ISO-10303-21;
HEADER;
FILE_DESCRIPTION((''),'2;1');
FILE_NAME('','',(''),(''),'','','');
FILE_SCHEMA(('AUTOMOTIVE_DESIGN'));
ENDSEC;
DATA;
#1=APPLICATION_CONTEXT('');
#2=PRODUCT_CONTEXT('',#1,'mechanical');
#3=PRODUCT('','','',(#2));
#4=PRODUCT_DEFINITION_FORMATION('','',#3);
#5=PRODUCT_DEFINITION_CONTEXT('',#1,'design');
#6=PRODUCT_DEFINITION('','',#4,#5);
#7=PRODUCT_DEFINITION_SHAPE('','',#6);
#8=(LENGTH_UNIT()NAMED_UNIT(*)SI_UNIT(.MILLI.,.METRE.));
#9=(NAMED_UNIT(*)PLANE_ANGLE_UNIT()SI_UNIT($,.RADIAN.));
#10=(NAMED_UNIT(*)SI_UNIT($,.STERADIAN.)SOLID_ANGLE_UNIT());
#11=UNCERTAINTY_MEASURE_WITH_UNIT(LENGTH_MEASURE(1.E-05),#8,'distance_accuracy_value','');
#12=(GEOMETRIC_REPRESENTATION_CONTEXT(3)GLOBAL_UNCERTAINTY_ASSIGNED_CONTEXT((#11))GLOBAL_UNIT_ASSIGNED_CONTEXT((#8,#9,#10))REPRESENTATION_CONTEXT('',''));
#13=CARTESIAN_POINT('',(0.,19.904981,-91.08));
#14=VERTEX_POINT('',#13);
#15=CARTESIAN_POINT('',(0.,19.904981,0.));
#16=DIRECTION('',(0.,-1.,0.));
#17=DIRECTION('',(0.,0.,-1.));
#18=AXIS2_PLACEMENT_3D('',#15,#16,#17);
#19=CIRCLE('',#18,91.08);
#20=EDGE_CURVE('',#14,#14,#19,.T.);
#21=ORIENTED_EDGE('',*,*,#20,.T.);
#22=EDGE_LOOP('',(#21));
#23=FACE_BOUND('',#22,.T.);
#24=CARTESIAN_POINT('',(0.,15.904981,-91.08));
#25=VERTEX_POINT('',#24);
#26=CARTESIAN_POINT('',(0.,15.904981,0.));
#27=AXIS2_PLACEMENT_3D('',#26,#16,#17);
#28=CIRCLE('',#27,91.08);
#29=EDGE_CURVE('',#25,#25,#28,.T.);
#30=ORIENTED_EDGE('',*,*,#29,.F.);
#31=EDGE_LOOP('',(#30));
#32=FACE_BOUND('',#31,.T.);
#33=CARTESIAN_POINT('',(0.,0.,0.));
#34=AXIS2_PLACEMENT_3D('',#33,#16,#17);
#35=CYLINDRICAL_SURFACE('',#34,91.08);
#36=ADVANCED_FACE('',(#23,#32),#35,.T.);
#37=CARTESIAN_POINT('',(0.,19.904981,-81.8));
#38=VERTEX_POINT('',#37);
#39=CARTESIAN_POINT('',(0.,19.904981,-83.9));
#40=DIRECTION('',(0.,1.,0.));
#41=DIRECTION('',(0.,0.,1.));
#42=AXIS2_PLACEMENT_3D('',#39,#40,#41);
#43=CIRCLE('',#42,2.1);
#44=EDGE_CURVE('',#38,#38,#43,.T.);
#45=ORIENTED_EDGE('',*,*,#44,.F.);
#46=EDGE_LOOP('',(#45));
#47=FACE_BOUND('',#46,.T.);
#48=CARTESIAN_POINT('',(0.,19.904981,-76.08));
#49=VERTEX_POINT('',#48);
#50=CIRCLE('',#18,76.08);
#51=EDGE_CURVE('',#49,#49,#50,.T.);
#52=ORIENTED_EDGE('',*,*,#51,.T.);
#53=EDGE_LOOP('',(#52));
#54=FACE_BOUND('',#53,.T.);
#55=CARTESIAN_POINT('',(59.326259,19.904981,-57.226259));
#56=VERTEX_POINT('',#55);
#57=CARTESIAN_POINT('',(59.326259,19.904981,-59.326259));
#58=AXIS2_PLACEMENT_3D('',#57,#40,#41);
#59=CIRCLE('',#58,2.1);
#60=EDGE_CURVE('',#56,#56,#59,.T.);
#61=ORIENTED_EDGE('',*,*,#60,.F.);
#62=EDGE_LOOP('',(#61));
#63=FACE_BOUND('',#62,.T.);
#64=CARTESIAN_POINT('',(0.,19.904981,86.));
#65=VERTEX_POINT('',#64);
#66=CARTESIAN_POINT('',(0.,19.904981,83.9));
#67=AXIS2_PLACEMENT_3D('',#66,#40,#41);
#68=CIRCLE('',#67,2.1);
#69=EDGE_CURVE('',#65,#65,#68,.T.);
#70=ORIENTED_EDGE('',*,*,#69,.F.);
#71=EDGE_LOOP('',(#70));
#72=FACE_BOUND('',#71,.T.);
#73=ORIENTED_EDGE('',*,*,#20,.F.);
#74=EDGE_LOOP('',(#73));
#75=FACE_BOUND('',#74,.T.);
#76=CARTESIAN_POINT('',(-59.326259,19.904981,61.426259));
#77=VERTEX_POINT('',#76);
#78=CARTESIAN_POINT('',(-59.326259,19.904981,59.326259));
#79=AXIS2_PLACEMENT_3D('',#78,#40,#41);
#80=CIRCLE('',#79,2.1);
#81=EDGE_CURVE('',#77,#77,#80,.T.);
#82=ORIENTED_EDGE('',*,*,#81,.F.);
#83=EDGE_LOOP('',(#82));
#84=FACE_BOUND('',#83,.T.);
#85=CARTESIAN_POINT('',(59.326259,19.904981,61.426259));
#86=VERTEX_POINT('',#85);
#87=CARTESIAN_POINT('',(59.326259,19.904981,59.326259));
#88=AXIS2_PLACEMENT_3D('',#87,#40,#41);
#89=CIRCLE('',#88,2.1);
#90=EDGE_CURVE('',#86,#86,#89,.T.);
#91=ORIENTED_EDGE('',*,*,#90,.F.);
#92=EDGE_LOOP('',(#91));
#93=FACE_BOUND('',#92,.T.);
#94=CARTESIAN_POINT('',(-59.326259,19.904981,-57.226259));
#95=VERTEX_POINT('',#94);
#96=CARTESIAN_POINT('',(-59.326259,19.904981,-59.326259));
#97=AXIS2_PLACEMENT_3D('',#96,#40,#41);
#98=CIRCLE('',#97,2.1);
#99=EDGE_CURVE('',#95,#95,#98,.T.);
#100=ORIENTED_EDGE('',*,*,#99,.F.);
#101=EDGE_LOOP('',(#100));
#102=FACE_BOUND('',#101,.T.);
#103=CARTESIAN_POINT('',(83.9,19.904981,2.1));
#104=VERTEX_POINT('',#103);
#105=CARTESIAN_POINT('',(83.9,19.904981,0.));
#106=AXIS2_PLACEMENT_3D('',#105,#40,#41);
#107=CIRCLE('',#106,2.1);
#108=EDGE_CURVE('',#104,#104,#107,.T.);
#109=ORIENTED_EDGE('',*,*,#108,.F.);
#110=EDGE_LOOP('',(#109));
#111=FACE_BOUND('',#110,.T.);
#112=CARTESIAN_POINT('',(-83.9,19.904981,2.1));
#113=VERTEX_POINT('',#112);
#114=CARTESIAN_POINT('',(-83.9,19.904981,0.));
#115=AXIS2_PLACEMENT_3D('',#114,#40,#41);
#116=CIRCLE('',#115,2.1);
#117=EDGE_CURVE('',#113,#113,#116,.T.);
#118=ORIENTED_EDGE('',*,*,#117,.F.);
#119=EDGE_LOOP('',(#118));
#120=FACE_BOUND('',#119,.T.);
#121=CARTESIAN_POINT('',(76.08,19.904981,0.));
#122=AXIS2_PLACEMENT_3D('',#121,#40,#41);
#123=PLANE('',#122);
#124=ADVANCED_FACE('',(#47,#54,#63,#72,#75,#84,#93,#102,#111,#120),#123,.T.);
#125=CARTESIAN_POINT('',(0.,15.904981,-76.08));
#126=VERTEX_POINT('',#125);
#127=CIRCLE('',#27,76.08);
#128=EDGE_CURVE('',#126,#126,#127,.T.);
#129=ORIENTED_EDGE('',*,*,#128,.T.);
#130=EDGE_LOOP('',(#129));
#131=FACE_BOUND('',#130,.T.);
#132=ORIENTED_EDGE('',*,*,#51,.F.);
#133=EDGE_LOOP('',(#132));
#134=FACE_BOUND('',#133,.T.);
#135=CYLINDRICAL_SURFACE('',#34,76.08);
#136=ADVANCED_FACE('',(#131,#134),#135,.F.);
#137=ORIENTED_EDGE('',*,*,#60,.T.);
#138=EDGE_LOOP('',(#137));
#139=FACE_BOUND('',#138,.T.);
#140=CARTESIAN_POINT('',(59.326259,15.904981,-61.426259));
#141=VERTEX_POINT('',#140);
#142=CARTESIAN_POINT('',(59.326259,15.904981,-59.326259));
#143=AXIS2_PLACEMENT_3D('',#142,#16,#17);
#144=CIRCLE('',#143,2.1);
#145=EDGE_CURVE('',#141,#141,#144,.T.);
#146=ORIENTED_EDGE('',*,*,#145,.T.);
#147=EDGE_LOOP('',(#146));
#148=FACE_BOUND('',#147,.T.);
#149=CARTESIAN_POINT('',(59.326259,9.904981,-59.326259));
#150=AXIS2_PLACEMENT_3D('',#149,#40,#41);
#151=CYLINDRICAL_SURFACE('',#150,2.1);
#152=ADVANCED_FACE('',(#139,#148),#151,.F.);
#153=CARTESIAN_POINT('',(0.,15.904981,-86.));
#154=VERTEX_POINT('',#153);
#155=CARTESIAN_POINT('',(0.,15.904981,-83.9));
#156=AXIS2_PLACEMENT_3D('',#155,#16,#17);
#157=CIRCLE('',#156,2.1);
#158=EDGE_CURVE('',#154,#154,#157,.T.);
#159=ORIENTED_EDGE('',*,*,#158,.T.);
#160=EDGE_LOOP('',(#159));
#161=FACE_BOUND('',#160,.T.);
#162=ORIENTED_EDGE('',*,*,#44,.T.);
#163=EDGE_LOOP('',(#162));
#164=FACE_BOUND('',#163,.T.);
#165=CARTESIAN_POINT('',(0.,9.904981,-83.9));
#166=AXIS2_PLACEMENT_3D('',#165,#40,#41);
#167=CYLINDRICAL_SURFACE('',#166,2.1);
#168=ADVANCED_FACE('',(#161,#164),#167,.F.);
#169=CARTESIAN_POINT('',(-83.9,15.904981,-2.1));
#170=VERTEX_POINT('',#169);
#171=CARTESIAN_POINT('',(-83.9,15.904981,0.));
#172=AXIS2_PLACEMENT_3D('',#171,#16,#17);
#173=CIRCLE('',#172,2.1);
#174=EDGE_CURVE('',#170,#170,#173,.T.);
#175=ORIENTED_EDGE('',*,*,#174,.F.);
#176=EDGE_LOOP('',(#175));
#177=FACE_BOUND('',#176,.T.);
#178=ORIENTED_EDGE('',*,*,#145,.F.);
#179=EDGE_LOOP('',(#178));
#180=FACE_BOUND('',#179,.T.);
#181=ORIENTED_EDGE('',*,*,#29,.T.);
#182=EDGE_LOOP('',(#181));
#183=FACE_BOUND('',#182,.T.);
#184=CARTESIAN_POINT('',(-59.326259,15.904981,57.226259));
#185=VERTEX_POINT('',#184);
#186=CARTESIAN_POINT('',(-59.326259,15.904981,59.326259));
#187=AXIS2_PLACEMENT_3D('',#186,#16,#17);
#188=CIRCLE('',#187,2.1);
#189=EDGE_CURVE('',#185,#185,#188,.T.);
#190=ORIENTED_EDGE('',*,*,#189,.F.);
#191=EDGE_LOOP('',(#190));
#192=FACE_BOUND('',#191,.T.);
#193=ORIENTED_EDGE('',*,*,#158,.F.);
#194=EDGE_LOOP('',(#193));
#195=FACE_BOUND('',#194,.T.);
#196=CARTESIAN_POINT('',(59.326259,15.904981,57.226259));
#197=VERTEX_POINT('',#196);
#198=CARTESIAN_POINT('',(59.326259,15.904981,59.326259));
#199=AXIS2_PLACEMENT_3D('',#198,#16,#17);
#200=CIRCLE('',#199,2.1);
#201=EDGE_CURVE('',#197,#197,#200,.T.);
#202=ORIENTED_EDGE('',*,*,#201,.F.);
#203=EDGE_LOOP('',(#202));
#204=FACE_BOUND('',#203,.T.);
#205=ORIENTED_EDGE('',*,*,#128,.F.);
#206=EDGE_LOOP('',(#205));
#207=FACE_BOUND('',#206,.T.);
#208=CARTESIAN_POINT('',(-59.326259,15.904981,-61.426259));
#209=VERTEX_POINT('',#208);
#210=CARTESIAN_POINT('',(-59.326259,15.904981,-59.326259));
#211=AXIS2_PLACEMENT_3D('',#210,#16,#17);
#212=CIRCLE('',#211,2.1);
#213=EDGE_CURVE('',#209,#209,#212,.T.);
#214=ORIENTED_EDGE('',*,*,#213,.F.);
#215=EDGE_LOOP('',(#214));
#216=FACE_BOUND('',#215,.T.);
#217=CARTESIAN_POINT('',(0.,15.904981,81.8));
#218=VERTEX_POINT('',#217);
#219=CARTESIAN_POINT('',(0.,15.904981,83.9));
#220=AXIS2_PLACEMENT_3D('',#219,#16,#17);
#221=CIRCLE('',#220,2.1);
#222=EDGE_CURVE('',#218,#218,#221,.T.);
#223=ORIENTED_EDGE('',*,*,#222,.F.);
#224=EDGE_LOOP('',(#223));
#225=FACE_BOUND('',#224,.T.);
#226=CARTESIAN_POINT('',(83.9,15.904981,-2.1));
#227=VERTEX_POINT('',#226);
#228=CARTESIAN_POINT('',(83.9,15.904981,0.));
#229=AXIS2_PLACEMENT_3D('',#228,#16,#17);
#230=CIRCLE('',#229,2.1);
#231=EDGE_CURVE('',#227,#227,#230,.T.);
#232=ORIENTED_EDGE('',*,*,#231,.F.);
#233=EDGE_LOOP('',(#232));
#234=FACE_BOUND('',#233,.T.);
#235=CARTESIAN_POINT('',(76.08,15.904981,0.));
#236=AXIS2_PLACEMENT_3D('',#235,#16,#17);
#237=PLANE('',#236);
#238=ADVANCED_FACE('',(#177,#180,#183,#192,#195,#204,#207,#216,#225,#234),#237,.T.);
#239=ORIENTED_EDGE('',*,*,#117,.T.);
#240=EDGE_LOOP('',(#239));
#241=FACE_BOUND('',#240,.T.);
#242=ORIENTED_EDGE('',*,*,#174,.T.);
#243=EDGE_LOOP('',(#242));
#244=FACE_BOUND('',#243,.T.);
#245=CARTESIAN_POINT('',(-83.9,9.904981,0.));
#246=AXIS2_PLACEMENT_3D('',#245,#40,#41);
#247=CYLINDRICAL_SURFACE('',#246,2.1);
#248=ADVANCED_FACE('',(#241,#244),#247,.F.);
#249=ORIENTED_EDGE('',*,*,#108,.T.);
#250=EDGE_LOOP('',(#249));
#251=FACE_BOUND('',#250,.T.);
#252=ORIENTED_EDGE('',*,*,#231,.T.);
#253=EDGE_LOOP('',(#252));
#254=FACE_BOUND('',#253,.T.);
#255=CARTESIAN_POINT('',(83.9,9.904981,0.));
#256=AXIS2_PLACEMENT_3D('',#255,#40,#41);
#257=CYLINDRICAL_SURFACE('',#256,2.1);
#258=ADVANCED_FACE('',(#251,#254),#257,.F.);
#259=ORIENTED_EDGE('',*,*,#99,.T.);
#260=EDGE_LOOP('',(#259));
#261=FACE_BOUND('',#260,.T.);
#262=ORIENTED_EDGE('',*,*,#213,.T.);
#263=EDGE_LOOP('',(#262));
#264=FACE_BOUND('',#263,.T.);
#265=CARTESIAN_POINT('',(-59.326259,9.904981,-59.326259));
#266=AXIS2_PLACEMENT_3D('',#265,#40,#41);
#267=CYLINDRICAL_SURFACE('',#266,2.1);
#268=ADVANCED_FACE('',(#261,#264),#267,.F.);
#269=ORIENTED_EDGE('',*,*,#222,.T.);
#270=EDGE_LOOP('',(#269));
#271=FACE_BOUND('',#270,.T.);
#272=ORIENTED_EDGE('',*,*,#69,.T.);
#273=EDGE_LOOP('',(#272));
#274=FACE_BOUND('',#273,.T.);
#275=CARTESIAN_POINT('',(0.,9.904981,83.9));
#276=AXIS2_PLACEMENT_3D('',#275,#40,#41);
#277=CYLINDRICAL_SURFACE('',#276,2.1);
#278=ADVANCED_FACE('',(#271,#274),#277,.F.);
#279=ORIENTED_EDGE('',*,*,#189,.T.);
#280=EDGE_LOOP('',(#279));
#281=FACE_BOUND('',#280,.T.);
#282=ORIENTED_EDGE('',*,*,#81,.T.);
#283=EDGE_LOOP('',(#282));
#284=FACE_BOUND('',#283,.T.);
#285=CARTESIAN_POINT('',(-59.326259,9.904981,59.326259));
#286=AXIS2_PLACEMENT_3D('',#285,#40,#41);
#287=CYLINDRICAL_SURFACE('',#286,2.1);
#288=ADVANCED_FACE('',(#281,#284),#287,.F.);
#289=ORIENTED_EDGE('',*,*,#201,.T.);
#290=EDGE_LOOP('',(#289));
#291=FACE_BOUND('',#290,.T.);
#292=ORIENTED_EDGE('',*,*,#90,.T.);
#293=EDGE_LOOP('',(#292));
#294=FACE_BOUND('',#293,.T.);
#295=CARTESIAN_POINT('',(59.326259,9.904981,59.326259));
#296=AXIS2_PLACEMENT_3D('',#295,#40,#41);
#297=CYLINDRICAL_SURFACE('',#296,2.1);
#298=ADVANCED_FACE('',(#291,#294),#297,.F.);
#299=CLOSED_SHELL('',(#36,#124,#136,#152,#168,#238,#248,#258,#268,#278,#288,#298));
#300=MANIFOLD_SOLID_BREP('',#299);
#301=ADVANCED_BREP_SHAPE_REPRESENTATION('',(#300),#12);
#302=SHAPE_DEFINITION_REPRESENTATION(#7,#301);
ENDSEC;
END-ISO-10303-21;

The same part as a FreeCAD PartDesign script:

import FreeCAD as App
import Part
import Sketcher

V = App.Vector


def add_polygon(sketch, points):
    """Adds a closed chain of lines whose ends are joined by coincident constraints."""
    first, n = sketch.GeometryCount, len(points)
    for a, b in zip(points, points[1:] + points[:1]):
        sketch.addGeometry(Part.LineSegment(App.Vector(*a, 0), App.Vector(*b, 0)), False)
    for i in range(n):
        sketch.addConstraint(Sketcher.Constraint("Coincident", first + i, 2, first + (i + 1) % n, 1))

doc = App.newDocument("Part")
body = doc.addObject("PartDesign::Body", "Body")

# Sketch on XY plane
sketch1 = body.newObject("Sketcher::SketchObject", "Sketch")
sketch1.AttachmentSupport = (doc.getObject("XY_Plane"), [""])
sketch1.MapMode = "FlatFace"
add_polygon(sketch1, [(76.1, 19.9), (76.1, 15.9), (91.1, 15.9), (91.1, 19.9)])  # lines 0-3
sketch1.addConstraint([
    Sketcher.Constraint("Vertical", 0),
    Sketcher.Constraint("Horizontal", 1),
    Sketcher.Constraint("Vertical", 2),
    Sketcher.Constraint("Horizontal", 3),
    Sketcher.Constraint("DistanceX", 1, 1, 1, 2, 15.0),
    Sketcher.Constraint("DistanceY", 0, 2, 0, 1, 4.0),
    Sketcher.Constraint("DistanceX", -1, 1, 0, 2, 76.08),
    Sketcher.Constraint("DistanceY", -1, 1, 0, 2, 15.904981),
])
revolution = body.newObject("PartDesign::Revolution", "Revolution")
revolution.Profile = sketch1
revolution.ReferenceAxis = (sketch1, ["V_Axis"])
revolution.Angle = 360

# Sketch on XZ plane
sketch2 = body.newObject("Sketcher::SketchObject", "Sketch001")
sketch2.AttachmentSupport = (doc.getObject("XZ_Plane"), [""])
sketch2.MapMode = "FlatFace"
sketch2.AttachmentOffset = App.Placement(V(0, 0, -19.904981), App.Rotation())
sketch2.addGeometry([
    Part.Circle(V(-83.9, 0, 0), V(0, 0, 1), 2.1),  # 0
    Part.Circle(V(-59.3, -59.3, 0), V(0, 0, 1), 2.1),  # 1
    Part.Circle(V(0, -83.9, 0), V(0, 0, 1), 2.1),  # 2
    Part.Circle(V(59.3, -59.3, 0), V(0, 0, 1), 2.1),  # 3
    Part.Circle(V(83.9, 0, 0), V(0, 0, 1), 2.1),  # 4
    Part.Circle(V(59.3, 59.3, 0), V(0, 0, 1), 2.1),  # 5
    Part.Circle(V(0, 83.9, 0), V(0, 0, 1), 2.1),  # 6
    Part.Circle(V(-59.3, 59.3, 0), V(0, 0, 1), 2.1),  # 7
], False)
sketch2.addConstraint([
    Sketcher.Constraint("Equal", 0, 1),
    Sketcher.Constraint("Equal", 1, 2),
    Sketcher.Constraint("Equal", 2, 3),
    Sketcher.Constraint("Equal", 3, 4),
    Sketcher.Constraint("Equal", 4, 5),
    Sketcher.Constraint("Equal", 5, 6),
    Sketcher.Constraint("Equal", 6, 7),
    Sketcher.Constraint("Symmetric", 0, 3, 4, 3, -1, 1),
    Sketcher.Constraint("Symmetric", 1, 3, 5, 3, -1, 1),
    Sketcher.Constraint("Symmetric", 2, 3, 6, 3, -1, 1),
    Sketcher.Constraint("Symmetric", 3, 3, 7, 3, -1, 1),
    Sketcher.Constraint("Symmetric", 1, 3, 3, 3, -2),
    Sketcher.Constraint("PointOnObject", 0, 3, -1),
    Sketcher.Constraint("PointOnObject", 2, 3, -2),
    Sketcher.Constraint("Diameter", 0, 4.2),
    Sketcher.Constraint("DistanceX", 0, 3, -1, 1, 83.9),
    Sketcher.Constraint("DistanceY", 2, 3, -1, 1, 83.9),
    Sketcher.Constraint("DistanceX", 1, 3, -1, 1, 59.326259),
    Sketcher.Constraint("DistanceY", 1, 3, -1, 1, 59.326259),
])
pocket1 = body.newObject("PartDesign::Pocket", "Pocket")
pocket1.Profile = sketch2
pocket1.Length = 10
pocket1.Reversed = True

doc.recompute()
